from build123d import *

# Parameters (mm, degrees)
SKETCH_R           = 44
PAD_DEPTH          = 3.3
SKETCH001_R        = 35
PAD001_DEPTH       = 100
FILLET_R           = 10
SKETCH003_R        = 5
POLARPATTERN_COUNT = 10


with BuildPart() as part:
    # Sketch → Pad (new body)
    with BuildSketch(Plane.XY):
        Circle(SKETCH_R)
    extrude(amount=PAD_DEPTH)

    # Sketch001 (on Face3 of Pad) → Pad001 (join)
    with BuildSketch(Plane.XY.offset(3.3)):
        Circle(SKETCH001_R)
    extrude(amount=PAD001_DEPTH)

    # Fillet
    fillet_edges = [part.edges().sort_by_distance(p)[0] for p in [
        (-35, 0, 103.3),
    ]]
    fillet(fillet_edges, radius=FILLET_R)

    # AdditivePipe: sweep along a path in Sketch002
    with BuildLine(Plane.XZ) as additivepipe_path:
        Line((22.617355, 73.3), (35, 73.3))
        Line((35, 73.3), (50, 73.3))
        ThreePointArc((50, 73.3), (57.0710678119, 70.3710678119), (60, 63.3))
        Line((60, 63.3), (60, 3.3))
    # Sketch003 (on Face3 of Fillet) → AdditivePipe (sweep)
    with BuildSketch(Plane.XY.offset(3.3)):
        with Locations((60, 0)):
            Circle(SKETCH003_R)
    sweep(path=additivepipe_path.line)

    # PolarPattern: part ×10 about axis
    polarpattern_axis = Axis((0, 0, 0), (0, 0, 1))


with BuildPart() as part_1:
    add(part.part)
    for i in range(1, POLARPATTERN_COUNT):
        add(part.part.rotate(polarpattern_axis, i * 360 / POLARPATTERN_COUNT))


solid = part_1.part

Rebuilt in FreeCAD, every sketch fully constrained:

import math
import FreeCAD as App
import Part
import Sketcher

V = App.Vector
Q = App.Units.Quantity


def edges_at(feature, points):
    """Names of the edges that pass closest to the given points."""
    edges = feature.Shape.Edges
    near = lambda p: min(range(len(edges)), key=lambda i: edges[i].distToShape(Part.Vertex(*p))[0])
    return sorted({f"Edge{near(p) + 1}" for p in points})

doc = App.newDocument("Part")
body = doc.addObject("PartDesign::Body", "Body")

# Sketch on XY plane
sketch1 = body.newObject("Sketcher::SketchObject", "Sketch")
sketch1.AttachmentSupport = (doc.getObject("XY_Plane"), [""])
sketch1.MapMode = "FlatFace"
sketch1.addGeometry(Part.Circle(V(0, 0, 0), V(0, 0, 1), 44), False)
sketch1.addConstraint([
    Sketcher.Constraint("Coincident", 0, 3, -1, 1),
    Sketcher.Constraint("Diameter", 0, Q("88 mm")),
])
pad1 = body.newObject("PartDesign::Pad", "Pad")
pad1.Profile = sketch1
pad1.Length = 3.3

# Sketch on XY plane
sketch2 = body.newObject("Sketcher::SketchObject", "Sketch001")
sketch2.AttachmentSupport = (doc.getObject("XY_Plane"), [""])
sketch2.MapMode = "FlatFace"
sketch2.AttachmentOffset = App.Placement(V(0, 0, 3.3), App.Rotation())
sketch2.addGeometry(Part.Circle(V(0, 0, 0), V(0, 0, 1), 35), False)
sketch2.addConstraint([
    Sketcher.Constraint("Coincident", 0, 3, -1, 1),
    Sketcher.Constraint("Diameter", 0, Q("70 mm")),
])
pad2 = body.newObject("PartDesign::Pad", "Pad001")
pad2.Profile = sketch2
pad2.Length = 100
doc.recompute()

fillet = body.newObject("PartDesign::Fillet", "Fillet")
fillet.Base = (pad2, edges_at(pad2, [(-35, 0, 103.3)]))
fillet.Radius = 10

# Sketch on XY plane
sketch3 = body.newObject("Sketcher::SketchObject", "Sketch002")
sketch3.AttachmentSupport = (doc.getObject("XY_Plane"), [""])
sketch3.MapMode = "FlatFace"
sketch3.AttachmentOffset = App.Placement(V(0, 0, 3.3), App.Rotation())
sketch3.addGeometry(Part.Circle(V(60, 0, 0), V(0, 0, 1), 5), False)
sketch3.addConstraint([
    Sketcher.Constraint("PointOnObject", 0, 3, -1),
    Sketcher.Constraint("Diameter", 0, Q("10 mm")),
    Sketcher.Constraint("DistanceX", -1, 1, 0, 3, Q("60 mm")),
])

# Sketch on XZ plane
sketch4 = body.newObject("Sketcher::SketchObject", "Sketch003")
sketch4.AttachmentSupport = (doc.getObject("XZ_Plane"), [""])
sketch4.MapMode = "FlatFace"
sketch4.addGeometry([
    Part.LineSegment(V(23, 73, 0), V(50, 73, 0)),
    Part.ArcOfCircle(Part.Circle(V(50, 63, 0), V(0, 0, 1), 10), math.radians(0), math.radians(90)),
    Part.LineSegment(V(60, 63, 0), V(60, 3, 0)),
], False)
sketch4.addConstraint([
    Sketcher.Constraint("Tangent", 0, 2, 1, 2),
    Sketcher.Constraint("Tangent", 1, 1, 2, 1),
    Sketcher.Constraint("Horizontal", 0),
    Sketcher.Constraint("Vertical", 2),
    Sketcher.Constraint("Radius", 1, Q("10 mm")),
    Sketcher.Constraint("DistanceY", 2, 2, 2, 1, Q("60 mm")),
    Sketcher.Constraint("DistanceX", -1, 1, 1, 3, Q("50 mm")),
    Sketcher.Constraint("DistanceY", -1, 1, 1, 3, Q("63.3 mm")),
    Sketcher.Constraint("DistanceX", 0, 1, 0, 2, Q("27.382645 mm")),
])
doc.recompute()

additivepipe = body.newObject("PartDesign::AdditivePipe", "AdditivePipe")
additivepipe.Profile = sketch3
additivepipe.Spine = (sketch4, ["Edge1", "Edge2", "Edge3"])
body2 = doc.addObject("PartDesign::Body", "Body001")
doc.recompute()

body2.BaseFeature = body
doc.recompute()

body3 = doc.addObject("PartDesign::Body", "Body002")
body3.BaseFeature = body
body3.Placement = App.Placement(V(0, 0, 0), App.Rotation(V(0, 0, 1), 36))
boolean = body2.newObject("PartDesign::Boolean", "Boolean")
boolean.Type = "Fuse"
boolean.addObjects([body3])
doc.recompute()

body4 = doc.addObject("PartDesign::Body", "Body003")
body4.BaseFeature = body
body4.Placement = App.Placement(V(0, 0, 0), App.Rotation(V(0, 0, 1), 72))
boolean2 = body2.newObject("PartDesign::Boolean", "Boolean001")
boolean2.Type = "Fuse"
boolean2.addObjects([body4])
doc.recompute()

body5 = doc.addObject("PartDesign::Body", "Body004")
body5.BaseFeature = body
body5.Placement = App.Placement(V(0, 0, 0), App.Rotation(V(0, 0, 1), 108))
boolean3 = body2.newObject("PartDesign::Boolean", "Boolean002")
boolean3.Type = "Fuse"
boolean3.addObjects([body5])
doc.recompute()

body6 = doc.addObject("PartDesign::Body", "Body005")
body6.BaseFeature = body
body6.Placement = App.Placement(V(0, 0, 0), App.Rotation(V(0, 0, 1), 144))
boolean4 = body2.newObject("PartDesign::Boolean", "Boolean003")
boolean4.Type = "Fuse"
boolean4.addObjects([body6])
doc.recompute()

body7 = doc.addObject("PartDesign::Body", "Body006")
body7.BaseFeature = body
body7.Placement = App.Placement(V(0, 0, 0), App.Rotation(V(0, 0, 1), 180))
boolean5 = body2.newObject("PartDesign::Boolean", "Boolean004")
boolean5.Type = "Fuse"
boolean5.addObjects([body7])
doc.recompute()

body8 = doc.addObject("PartDesign::Body", "Body007")
body8.BaseFeature = body
body8.Placement = App.Placement(V(0, 0, 0), App.Rotation(V(0, 0, 1), 216))
boolean6 = body2.newObject("PartDesign::Boolean", "Boolean005")
boolean6.Type = "Fuse"
boolean6.addObjects([body8])
doc.recompute()

body9 = doc.addObject("PartDesign::Body", "Body008")
body9.BaseFeature = body
body9.Placement = App.Placement(V(0, 0, 0), App.Rotation(V(0, 0, 1), 252))
boolean7 = body2.newObject("PartDesign::Boolean", "Boolean006")
boolean7.Type = "Fuse"
boolean7.addObjects([body9])
doc.recompute()

body10 = doc.addObject("PartDesign::Body", "Body009")
body10.BaseFeature = body
body10.Placement = App.Placement(V(0, 0, 0), App.Rotation(V(0, 0, 1), 288))
boolean8 = body2.newObject("PartDesign::Boolean", "Boolean007")
boolean8.Type = "Fuse"
boolean8.addObjects([body10])
doc.recompute()

body.Placement = App.Placement(V(0, 0, 0), App.Rotation(V(0, 0, 1), 324))
boolean9 = body2.newObject("PartDesign::Boolean", "Boolean008")
boolean9.Type = "Fuse"
boolean9.addObjects([body])

doc.recompute()
